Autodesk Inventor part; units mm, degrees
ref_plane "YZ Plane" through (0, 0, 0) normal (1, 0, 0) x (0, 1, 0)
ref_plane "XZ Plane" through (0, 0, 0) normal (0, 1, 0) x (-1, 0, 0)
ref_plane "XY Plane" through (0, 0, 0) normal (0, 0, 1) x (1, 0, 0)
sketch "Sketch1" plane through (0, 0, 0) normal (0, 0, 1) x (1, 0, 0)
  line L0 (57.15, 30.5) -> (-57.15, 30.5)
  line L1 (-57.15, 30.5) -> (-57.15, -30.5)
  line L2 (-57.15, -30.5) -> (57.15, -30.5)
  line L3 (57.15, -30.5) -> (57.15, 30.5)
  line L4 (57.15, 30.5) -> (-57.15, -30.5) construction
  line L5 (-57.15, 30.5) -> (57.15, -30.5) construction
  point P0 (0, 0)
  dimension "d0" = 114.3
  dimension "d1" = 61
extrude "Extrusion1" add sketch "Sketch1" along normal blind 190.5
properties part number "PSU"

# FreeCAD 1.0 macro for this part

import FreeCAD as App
import Part
import Sketcher

V = App.Vector
Q = App.Units.Quantity


def add_polygon(sketch, points):
    """Adds a closed chain of lines whose ends are joined by coincident constraints."""
    first, n = sketch.GeometryCount, len(points)
    for a, b in zip(points, points[1:] + points[:1]):
        sketch.addGeometry(Part.LineSegment(App.Vector(*a, 0), App.Vector(*b, 0)), False)
    for i in range(n):
        sketch.addConstraint(Sketcher.Constraint("Coincident", first + i, 2, first + (i + 1) % n, 1))

doc = App.newDocument("Part")
body = doc.addObject("PartDesign::Body", "Body")

# Sketch on XY plane
sketch1 = doc.addObject("Sketcher::SketchObject", "Sketch")
body.addObject(sketch1)
sketch1.AttachmentSupport = (doc.XY_Plane, [""])
sketch1.MapMode = "FlatFace"
add_polygon(sketch1, [(57.15, -30.5), (57.15, 30.5), (-57.15, 30.5), (-57.15, -30.5)])  # lines 0-3
sketch1.addConstraint([
    Sketcher.Constraint("Vertical", 0),
    Sketcher.Constraint("Horizontal", 1),
    Sketcher.Constraint("Vertical", 2),
    Sketcher.Constraint("Horizontal", 3),
    Sketcher.Constraint("Symmetric", 0, 2, 2, 2, -1, 1),
    Sketcher.Constraint("DistanceX", 1, 2, 1, 1, Q("4.5 in")),
    Sketcher.Constraint("DistanceY", 0, 1, 0, 2, 61.0),
])
pad1 = doc.addObject("PartDesign::Pad", "Pad")
body.addObject(pad1)
pad1.Profile = sketch1
pad1.Length = Q("7.5 in")

doc.recompute()
